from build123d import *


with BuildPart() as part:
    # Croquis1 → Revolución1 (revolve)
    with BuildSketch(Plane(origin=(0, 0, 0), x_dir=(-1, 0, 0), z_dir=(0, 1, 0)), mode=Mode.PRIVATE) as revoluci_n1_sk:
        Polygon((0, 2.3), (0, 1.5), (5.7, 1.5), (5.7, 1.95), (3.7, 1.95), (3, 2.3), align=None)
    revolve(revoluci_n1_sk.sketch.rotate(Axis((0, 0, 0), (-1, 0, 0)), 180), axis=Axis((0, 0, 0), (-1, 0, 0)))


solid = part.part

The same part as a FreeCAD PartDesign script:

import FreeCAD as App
import Part
import Sketcher

V = App.Vector


def add_polygon(sketch, points):
    """Adds a closed chain of lines whose ends are joined by coincident constraints."""
    first, n = sketch.GeometryCount, len(points)
    for a, b in zip(points, points[1:] + points[:1]):
        sketch.addGeometry(Part.LineSegment(App.Vector(*a, 0), App.Vector(*b, 0)), False)
    for i in range(n):
        sketch.addConstraint(Sketcher.Constraint("Coincident", first + i, 2, first + (i + 1) % n, 1))

doc = App.newDocument("Part")
body = doc.addObject("PartDesign::Body", "Body")

# Sketch on XZ plane
sketch1 = body.newObject("Sketcher::SketchObject", "Sketch")
sketch1.AttachmentSupport = (doc.getObject("XZ_Plane"), [""])
sketch1.MapMode = "FlatFace"
add_polygon(sketch1, [(0, 2.3), (0, 1.5), (-5.7, 1.5), (-5.7, 1.95), (-3.7, 1.95), (-3, 2.3)])  # lines 0-5
sketch1.addConstraint([
    Sketcher.Constraint("Vertical", 0),
    Sketcher.Constraint("Horizontal", 1),
    Sketcher.Constraint("Vertical", 2),
    Sketcher.Constraint("Horizontal", 3),
    Sketcher.Constraint("Horizontal", 5),
    Sketcher.Constraint("PointOnObject", 0, 2, -2),
    Sketcher.Constraint("DistanceX", 3, 1, 3, 2, 2.0),
    Sketcher.Constraint("DistanceX", 5, 1, 5, 2, 3.0),
    Sketcher.Constraint("DistanceX", 1, 2, 1, 1, 5.7),
    Sketcher.Constraint("DistanceY", 0, 2, 0, 1, 0.8),
    Sketcher.Constraint("DistanceY", 2, 1, 2, 2, 0.45),
    Sketcher.Constraint("DistanceY", -1, 1, 0, 2, 1.5),
])
revolution = body.newObject("PartDesign::Revolution", "Revolution")
revolution.Profile = sketch1
revolution.ReferenceAxis = (sketch1, ["H_Axis"])
revolution.Angle = 360

doc.recompute()
